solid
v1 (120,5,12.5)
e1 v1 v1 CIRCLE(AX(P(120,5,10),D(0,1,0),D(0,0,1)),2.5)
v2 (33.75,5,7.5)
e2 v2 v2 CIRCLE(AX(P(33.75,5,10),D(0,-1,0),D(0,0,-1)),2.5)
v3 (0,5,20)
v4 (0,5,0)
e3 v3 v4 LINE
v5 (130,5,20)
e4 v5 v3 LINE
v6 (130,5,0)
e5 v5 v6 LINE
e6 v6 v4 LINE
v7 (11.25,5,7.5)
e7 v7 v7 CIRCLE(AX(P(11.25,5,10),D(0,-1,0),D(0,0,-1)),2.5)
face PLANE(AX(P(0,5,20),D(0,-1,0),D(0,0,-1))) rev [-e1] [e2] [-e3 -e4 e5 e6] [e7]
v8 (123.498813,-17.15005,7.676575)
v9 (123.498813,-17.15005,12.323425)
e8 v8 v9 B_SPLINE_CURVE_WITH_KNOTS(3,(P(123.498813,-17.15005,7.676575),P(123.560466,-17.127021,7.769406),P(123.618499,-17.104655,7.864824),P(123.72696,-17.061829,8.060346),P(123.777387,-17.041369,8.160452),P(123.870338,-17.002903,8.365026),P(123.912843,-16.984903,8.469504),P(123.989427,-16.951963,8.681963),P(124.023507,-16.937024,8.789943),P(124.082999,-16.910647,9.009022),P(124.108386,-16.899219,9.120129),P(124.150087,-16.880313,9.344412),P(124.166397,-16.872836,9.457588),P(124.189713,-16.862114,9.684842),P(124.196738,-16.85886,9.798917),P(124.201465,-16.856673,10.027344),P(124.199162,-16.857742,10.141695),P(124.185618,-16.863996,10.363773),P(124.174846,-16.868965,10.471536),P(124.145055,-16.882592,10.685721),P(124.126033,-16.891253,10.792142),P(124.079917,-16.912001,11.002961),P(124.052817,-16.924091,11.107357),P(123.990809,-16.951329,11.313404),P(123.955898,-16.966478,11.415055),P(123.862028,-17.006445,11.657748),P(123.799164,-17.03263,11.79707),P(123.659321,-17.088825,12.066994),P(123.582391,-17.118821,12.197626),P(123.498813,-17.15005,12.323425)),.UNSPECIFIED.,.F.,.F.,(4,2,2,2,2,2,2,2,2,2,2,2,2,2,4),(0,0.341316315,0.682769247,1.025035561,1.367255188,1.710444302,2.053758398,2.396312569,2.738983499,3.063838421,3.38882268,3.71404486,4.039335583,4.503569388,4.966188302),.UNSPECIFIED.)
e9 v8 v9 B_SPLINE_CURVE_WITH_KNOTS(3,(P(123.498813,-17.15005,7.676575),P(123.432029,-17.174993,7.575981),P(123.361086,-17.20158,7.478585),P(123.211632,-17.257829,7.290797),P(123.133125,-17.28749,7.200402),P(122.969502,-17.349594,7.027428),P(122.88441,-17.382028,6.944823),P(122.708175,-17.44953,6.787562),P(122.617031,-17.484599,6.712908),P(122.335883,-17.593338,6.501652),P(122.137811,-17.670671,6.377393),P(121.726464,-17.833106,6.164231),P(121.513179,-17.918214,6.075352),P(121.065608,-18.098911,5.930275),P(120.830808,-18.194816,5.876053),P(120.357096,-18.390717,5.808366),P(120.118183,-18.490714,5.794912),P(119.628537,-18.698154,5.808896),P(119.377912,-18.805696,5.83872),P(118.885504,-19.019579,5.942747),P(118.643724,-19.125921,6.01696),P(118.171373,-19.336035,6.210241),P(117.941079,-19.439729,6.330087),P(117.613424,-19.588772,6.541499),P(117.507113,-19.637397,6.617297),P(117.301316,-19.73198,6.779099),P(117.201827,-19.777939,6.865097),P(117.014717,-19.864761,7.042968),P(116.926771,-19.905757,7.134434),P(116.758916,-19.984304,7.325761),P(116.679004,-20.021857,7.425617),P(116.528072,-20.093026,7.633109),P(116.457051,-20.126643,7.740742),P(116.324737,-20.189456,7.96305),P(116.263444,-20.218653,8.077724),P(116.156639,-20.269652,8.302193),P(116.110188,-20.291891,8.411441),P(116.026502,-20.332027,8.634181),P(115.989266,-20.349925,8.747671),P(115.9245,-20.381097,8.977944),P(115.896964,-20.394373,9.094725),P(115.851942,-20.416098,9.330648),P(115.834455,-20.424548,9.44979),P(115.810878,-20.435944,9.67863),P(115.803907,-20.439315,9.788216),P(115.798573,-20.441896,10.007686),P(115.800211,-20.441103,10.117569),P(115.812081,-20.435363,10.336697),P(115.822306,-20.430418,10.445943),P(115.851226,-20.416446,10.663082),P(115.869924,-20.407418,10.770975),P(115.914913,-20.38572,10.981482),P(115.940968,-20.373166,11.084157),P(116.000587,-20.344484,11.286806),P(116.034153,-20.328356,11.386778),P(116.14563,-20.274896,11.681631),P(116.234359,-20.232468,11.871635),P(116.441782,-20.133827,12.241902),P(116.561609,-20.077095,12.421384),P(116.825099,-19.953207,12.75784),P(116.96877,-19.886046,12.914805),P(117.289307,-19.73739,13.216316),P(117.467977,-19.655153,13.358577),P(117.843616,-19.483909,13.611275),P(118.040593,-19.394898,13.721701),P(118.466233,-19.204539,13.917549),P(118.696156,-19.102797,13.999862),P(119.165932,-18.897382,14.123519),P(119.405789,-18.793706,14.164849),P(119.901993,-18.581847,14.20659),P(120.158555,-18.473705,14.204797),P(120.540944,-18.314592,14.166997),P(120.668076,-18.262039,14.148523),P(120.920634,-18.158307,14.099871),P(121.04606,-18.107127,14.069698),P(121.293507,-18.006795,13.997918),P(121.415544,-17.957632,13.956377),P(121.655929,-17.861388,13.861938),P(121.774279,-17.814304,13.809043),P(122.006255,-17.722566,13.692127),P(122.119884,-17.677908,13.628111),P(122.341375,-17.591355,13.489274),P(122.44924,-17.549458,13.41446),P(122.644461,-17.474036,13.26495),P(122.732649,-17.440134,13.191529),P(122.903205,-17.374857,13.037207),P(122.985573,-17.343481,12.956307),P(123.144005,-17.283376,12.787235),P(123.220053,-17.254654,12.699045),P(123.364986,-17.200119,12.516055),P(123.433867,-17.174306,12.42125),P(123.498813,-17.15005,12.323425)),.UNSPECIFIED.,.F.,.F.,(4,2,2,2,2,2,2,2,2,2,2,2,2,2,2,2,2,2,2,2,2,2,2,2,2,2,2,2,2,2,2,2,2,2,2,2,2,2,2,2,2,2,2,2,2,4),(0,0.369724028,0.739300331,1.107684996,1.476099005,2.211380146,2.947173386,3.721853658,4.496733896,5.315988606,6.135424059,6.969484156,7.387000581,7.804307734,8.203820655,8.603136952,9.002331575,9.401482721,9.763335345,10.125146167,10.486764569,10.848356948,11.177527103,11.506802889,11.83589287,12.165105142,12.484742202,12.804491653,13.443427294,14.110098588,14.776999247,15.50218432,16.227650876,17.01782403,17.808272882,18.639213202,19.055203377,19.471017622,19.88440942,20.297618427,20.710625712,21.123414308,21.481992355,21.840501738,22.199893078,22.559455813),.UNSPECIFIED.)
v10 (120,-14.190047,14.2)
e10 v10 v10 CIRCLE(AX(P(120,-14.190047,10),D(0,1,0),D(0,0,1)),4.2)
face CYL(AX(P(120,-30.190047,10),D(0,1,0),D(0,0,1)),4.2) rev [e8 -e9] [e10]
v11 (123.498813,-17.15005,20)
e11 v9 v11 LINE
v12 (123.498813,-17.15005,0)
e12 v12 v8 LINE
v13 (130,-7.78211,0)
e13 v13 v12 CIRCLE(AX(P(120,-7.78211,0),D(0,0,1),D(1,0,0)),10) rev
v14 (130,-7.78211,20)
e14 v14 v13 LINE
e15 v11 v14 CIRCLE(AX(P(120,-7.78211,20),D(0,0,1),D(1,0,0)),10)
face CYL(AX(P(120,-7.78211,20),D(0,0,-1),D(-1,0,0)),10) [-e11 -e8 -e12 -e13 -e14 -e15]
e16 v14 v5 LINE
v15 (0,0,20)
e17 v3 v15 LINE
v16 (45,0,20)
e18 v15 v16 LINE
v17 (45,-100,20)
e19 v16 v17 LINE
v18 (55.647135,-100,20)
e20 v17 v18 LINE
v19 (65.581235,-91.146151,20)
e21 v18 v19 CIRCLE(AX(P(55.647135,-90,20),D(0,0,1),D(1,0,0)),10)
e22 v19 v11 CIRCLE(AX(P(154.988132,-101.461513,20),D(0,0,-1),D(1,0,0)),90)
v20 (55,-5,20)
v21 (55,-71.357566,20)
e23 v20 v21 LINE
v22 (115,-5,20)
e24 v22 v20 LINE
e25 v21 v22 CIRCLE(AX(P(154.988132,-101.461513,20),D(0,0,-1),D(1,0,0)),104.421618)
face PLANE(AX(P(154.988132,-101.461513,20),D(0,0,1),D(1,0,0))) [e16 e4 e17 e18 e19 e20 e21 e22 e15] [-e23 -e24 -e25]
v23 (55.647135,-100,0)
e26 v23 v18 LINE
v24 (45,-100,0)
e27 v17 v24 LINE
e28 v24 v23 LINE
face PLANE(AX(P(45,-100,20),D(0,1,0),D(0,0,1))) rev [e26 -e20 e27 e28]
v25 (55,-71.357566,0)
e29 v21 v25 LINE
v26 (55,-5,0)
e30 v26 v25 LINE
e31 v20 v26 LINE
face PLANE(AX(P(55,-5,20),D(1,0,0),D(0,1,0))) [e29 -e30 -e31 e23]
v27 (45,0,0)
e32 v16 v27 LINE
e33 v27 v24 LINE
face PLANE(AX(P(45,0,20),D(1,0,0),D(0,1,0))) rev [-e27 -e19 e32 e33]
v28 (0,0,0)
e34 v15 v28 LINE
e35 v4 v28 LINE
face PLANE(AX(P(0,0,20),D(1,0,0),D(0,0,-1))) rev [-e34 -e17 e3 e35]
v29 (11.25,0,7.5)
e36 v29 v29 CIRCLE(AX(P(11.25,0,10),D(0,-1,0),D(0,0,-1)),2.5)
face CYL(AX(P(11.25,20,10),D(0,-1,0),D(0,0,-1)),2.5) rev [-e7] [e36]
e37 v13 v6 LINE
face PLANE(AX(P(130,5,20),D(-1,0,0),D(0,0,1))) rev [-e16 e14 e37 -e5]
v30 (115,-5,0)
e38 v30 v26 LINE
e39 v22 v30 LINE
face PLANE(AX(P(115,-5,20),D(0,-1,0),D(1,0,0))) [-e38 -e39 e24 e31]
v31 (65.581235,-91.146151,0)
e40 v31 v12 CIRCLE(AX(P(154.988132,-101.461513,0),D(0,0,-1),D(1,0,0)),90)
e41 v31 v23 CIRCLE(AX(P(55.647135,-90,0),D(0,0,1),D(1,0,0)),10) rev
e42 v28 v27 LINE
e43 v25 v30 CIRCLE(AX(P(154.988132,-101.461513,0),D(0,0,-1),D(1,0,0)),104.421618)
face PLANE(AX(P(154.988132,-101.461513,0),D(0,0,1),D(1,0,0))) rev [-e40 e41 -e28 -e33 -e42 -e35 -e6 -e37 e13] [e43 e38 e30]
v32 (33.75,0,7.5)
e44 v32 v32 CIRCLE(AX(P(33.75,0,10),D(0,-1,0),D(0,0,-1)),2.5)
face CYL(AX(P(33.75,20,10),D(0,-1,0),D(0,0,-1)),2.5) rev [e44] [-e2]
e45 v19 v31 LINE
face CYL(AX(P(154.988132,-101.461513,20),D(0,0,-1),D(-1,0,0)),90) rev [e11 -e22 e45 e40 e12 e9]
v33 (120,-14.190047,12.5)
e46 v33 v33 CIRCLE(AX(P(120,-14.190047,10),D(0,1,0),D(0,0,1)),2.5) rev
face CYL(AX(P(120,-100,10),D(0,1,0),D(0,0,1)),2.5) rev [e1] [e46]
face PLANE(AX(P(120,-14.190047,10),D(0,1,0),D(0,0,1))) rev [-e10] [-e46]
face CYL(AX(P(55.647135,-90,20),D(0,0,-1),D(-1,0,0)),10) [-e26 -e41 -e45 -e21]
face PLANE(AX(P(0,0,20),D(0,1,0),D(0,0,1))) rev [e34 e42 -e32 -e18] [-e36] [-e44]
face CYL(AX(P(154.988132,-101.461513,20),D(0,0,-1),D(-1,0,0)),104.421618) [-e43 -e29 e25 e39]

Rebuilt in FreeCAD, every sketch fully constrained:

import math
import FreeCAD as App
import Part
import Sketcher

V = App.Vector
Q = App.Units.Quantity


def edges_at(feature, points):
    """Names of the edges that pass closest to the given points."""
    edges = feature.Shape.Edges
    near = lambda p: min(range(len(edges)), key=lambda i: edges[i].distToShape(Part.Vertex(*p))[0])
    return sorted({f"Edge{near(p) + 1}" for p in points})

doc = App.newDocument("Part")
params = doc.addObject("Spreadsheet::Sheet", "Params")
for row, (alias, value) in enumerate([
    ("sketch1_radius", "90 mm"),
    ("sketch1_width", "45 mm"),
    ("sketch1_width2", "20 mm"),
    ("sketch1_width3", "130 mm"),
    ("sketch1_width4", "60 mm"),
    ("pad1_length", "20 mm"),
    ("fillet_radius", "10 mm"),
    ("fillet2_radius", "10 mm"),
    ("sketch2_diameter", "5 mm"),
    ("pocket1_length", "20 mm"),
    ("sketch3_diameter", "5 mm"),
    ("sketch4_diameter", "8.4 mm"),
    ("pocket3_length", "3 mm"),
    ("pocket3_length2", "13 mm"),
], start=1):
    params.set(f"A{row}", alias)
    params.set(f"B{row}", "=" + value)
    params.setAlias(f"B{row}", alias)

body = doc.addObject("PartDesign::Body", "Body")

# Sketch on XY plane
sketch1 = body.newObject("Sketcher::SketchObject", "Sketch")
sketch1.AttachmentSupport = (doc.getObject("XY_Plane"), [""])
sketch1.MapMode = "FlatFace"
sketch1.addGeometry([
    Part.LineSegment(V(0, 0, 0), V(45, 0, 0)),  # 0
    Part.LineSegment(V(45, 0, 0), V(45, -100, 0)),  # 1
    Part.LineSegment(V(45, -100, 0), V(65, -100, 0)),  # 2
    Part.ArcOfCircle(Part.Circle(V(155, -101, 0), V(0, 0, 1), 90), math.radians(106), math.radians(179)),  # 3
    Part.LineSegment(V(130, -15, 0), V(130, 5, 0)),  # 4
    Part.LineSegment(V(130, 5, 0), V(0, 5, 0)),  # 5
    Part.LineSegment(V(0, 5, 0), V(0, 0, 0)),  # 6
    Part.LineSegment(V(55, -5, 0), V(115, -5, 0)),  # 7
    Part.ArcOfCircle(Part.Circle(V(155, -101, 0), V(0, 0, 1), 104), math.radians(113), math.radians(163)),  # 8
    Part.LineSegment(V(55, -71, 0), V(55, -5, 0)),  # 9
], False)
sketch1.addConstraint([
    Sketcher.Constraint("Coincident", 0, 2, 1, 1),
    Sketcher.Constraint("Coincident", 1, 2, 2, 1),
    Sketcher.Constraint("Coincident", 2, 2, 3, 2),
    Sketcher.Constraint("Coincident", 3, 1, 4, 1),
    Sketcher.Constraint("Coincident", 4, 2, 5, 1),
    Sketcher.Constraint("Coincident", 5, 2, 6, 1),
    Sketcher.Constraint("Coincident", 6, 2, 0, 1),
    Sketcher.Constraint("Coincident", 7, 2, 8, 1),
    Sketcher.Constraint("Coincident", 8, 2, 9, 1),
    Sketcher.Constraint("Coincident", 9, 2, 7, 1),
    Sketcher.Constraint("Horizontal", 0),
    Sketcher.Constraint("Vertical", 1),
    Sketcher.Constraint("Horizontal", 2),
    Sketcher.Constraint("Vertical", 4),
    Sketcher.Constraint("Horizontal", 5),
    Sketcher.Constraint("Vertical", 6),
    Sketcher.Constraint("Horizontal", 7),
    Sketcher.Constraint("Vertical", 9),
    Sketcher.Constraint("Coincident", 6, 2, -1, 1),
    Sketcher.Constraint("Coincident", 8, 3, 3, 3),
    Sketcher.Constraint("Equal", 2, 4),
    Sketcher.Constraint("Radius", 3, Q("90 mm")),
    Sketcher.Constraint("DistanceX", 0, 1, 0, 2, Q("45 mm")),
    Sketcher.Constraint("DistanceX", 2, 1, 2, 2, Q("20 mm")),
    Sketcher.Constraint("DistanceX", 5, 2, 5, 1, Q("130 mm")),
    Sketcher.Constraint("DistanceX", 7, 1, 7, 2, Q("60 mm")),
    Sketcher.Constraint("DistanceY", 1, 2, 1, 1, Q("100 mm")),
    Sketcher.Constraint("DistanceY", 6, 2, 6, 1, Q("5 mm")),
    Sketcher.Constraint("DistanceX", -1, 1, 7, 2, Q("115 mm")),
    Sketcher.Constraint("DistanceY", 7, 2, -1, 1, Q("5 mm")),
])
sketch1.setExpression("Constraints[21]", "Params.sketch1_radius")
sketch1.setExpression("Constraints[22]", "Params.sketch1_width")
sketch1.setExpression("Constraints[23]", "Params.sketch1_width2")
sketch1.setExpression("Constraints[24]", "Params.sketch1_width3")
sketch1.setExpression("Constraints[25]", "Params.sketch1_width4")
pad1 = body.newObject("PartDesign::Pad", "Pad")
pad1.Profile = sketch1
pad1.setExpression("Length", "Params.pad1_length")
doc.recompute()

fillet = body.newObject("PartDesign::Fillet", "Fillet")
fillet.Base = (pad1, edges_at(pad1, [(130, -15, 10)]))
fillet.setExpression("Radius", "Params.fillet_radius")
doc.recompute()

fillet2 = body.newObject("PartDesign::Fillet", "Fillet001")
fillet2.Base = (fillet, edges_at(fillet, [(65, -100, 10)]))
fillet2.setExpression("Radius", "Params.fillet2_radius")

# Sketch on XZ plane
sketch2 = body.newObject("Sketcher::SketchObject", "Sketch001")
sketch2.AttachmentSupport = (doc.getObject("XZ_Plane"), [""])
sketch2.MapMode = "FlatFace"
sketch2.addGeometry([
    Part.Circle(V(33.8, 10, 0), V(0, 0, 1), 2.5),
    Part.Circle(V(11.2, 10, 0), V(0, 0, 1), 2.5),
], False)
sketch2.addConstraint([
    Sketcher.Constraint("Equal", 0, 1),
    Sketcher.Constraint("Horizontal", 0, 3, 1, 3),
    Sketcher.Constraint("Diameter", 0, Q("5 mm")),
    Sketcher.Constraint("DistanceY", -1, 1, 0, 3, Q("10 mm")),
    Sketcher.Constraint("DistanceX", 1, 3, 0, 3, Q("22.5 mm")),
    Sketcher.Constraint("DistanceX", -1, 1, 0, 3, Q("33.75 mm")),
])
sketch2.setExpression("Constraints[2]", "Params.sketch2_diameter")
pocket1 = body.newObject("PartDesign::Pocket", "Pocket")
pocket1.Profile = sketch2
pocket1.setExpression("Length", "Params.pocket1_length")

# Sketch on XZ plane
sketch3 = body.newObject("Sketcher::SketchObject", "Sketch002")
sketch3.AttachmentSupport = (doc.getObject("XZ_Plane"), [""])
sketch3.MapMode = "FlatFace"
sketch3.AttachmentOffset = App.Placement(V(0, 0, -5), App.Rotation())
sketch3.addGeometry(Part.Circle(V(120, 10, 0), V(0, 0, 1), 2.5), False)
sketch3.addConstraint([
    Sketcher.Constraint("Diameter", 0, Q("5 mm")),
    Sketcher.Constraint("DistanceX", -1, 1, 0, 3, Q("120 mm")),
    Sketcher.Constraint("DistanceY", -1, 1, 0, 3, Q("10 mm")),
])
sketch3.setExpression("Constraints[0]", "Params.sketch3_diameter")
pocket2 = body.newObject("PartDesign::Pocket", "Pocket001")
pocket2.Profile = sketch3
pocket2.Type = "ThroughAll"
pocket2.Reversed = True

# Sketch on XZ plane
sketch4 = body.newObject("Sketcher::SketchObject", "Sketch003")
sketch4.AttachmentSupport = (doc.getObject("XZ_Plane"), [""])
sketch4.MapMode = "FlatFace"
sketch4.AttachmentOffset = App.Placement(V(0, 0, 17.190047), App.Rotation())
sketch4.addGeometry(Part.Circle(V(120, 10, 0), V(0, 0, 1), 4.2), False)
sketch4.addConstraint([
    Sketcher.Constraint("Diameter", 0, Q("8.4 mm")),
    Sketcher.Constraint("DistanceX", -1, 1, 0, 3, Q("120 mm")),
    Sketcher.Constraint("DistanceY", -1, 1, 0, 3, Q("10 mm")),
])
sketch4.setExpression("Constraints[0]", "Params.sketch4_diameter")
pocket3 = body.newObject("PartDesign::Pocket", "Pocket002")
pocket3.Profile = sketch4
pocket3.Type = "TwoLengths"
pocket3.setExpression("Length", "Params.pocket3_length")
pocket3.setExpression("Length2", "Params.pocket3_length2")

doc.recompute()
